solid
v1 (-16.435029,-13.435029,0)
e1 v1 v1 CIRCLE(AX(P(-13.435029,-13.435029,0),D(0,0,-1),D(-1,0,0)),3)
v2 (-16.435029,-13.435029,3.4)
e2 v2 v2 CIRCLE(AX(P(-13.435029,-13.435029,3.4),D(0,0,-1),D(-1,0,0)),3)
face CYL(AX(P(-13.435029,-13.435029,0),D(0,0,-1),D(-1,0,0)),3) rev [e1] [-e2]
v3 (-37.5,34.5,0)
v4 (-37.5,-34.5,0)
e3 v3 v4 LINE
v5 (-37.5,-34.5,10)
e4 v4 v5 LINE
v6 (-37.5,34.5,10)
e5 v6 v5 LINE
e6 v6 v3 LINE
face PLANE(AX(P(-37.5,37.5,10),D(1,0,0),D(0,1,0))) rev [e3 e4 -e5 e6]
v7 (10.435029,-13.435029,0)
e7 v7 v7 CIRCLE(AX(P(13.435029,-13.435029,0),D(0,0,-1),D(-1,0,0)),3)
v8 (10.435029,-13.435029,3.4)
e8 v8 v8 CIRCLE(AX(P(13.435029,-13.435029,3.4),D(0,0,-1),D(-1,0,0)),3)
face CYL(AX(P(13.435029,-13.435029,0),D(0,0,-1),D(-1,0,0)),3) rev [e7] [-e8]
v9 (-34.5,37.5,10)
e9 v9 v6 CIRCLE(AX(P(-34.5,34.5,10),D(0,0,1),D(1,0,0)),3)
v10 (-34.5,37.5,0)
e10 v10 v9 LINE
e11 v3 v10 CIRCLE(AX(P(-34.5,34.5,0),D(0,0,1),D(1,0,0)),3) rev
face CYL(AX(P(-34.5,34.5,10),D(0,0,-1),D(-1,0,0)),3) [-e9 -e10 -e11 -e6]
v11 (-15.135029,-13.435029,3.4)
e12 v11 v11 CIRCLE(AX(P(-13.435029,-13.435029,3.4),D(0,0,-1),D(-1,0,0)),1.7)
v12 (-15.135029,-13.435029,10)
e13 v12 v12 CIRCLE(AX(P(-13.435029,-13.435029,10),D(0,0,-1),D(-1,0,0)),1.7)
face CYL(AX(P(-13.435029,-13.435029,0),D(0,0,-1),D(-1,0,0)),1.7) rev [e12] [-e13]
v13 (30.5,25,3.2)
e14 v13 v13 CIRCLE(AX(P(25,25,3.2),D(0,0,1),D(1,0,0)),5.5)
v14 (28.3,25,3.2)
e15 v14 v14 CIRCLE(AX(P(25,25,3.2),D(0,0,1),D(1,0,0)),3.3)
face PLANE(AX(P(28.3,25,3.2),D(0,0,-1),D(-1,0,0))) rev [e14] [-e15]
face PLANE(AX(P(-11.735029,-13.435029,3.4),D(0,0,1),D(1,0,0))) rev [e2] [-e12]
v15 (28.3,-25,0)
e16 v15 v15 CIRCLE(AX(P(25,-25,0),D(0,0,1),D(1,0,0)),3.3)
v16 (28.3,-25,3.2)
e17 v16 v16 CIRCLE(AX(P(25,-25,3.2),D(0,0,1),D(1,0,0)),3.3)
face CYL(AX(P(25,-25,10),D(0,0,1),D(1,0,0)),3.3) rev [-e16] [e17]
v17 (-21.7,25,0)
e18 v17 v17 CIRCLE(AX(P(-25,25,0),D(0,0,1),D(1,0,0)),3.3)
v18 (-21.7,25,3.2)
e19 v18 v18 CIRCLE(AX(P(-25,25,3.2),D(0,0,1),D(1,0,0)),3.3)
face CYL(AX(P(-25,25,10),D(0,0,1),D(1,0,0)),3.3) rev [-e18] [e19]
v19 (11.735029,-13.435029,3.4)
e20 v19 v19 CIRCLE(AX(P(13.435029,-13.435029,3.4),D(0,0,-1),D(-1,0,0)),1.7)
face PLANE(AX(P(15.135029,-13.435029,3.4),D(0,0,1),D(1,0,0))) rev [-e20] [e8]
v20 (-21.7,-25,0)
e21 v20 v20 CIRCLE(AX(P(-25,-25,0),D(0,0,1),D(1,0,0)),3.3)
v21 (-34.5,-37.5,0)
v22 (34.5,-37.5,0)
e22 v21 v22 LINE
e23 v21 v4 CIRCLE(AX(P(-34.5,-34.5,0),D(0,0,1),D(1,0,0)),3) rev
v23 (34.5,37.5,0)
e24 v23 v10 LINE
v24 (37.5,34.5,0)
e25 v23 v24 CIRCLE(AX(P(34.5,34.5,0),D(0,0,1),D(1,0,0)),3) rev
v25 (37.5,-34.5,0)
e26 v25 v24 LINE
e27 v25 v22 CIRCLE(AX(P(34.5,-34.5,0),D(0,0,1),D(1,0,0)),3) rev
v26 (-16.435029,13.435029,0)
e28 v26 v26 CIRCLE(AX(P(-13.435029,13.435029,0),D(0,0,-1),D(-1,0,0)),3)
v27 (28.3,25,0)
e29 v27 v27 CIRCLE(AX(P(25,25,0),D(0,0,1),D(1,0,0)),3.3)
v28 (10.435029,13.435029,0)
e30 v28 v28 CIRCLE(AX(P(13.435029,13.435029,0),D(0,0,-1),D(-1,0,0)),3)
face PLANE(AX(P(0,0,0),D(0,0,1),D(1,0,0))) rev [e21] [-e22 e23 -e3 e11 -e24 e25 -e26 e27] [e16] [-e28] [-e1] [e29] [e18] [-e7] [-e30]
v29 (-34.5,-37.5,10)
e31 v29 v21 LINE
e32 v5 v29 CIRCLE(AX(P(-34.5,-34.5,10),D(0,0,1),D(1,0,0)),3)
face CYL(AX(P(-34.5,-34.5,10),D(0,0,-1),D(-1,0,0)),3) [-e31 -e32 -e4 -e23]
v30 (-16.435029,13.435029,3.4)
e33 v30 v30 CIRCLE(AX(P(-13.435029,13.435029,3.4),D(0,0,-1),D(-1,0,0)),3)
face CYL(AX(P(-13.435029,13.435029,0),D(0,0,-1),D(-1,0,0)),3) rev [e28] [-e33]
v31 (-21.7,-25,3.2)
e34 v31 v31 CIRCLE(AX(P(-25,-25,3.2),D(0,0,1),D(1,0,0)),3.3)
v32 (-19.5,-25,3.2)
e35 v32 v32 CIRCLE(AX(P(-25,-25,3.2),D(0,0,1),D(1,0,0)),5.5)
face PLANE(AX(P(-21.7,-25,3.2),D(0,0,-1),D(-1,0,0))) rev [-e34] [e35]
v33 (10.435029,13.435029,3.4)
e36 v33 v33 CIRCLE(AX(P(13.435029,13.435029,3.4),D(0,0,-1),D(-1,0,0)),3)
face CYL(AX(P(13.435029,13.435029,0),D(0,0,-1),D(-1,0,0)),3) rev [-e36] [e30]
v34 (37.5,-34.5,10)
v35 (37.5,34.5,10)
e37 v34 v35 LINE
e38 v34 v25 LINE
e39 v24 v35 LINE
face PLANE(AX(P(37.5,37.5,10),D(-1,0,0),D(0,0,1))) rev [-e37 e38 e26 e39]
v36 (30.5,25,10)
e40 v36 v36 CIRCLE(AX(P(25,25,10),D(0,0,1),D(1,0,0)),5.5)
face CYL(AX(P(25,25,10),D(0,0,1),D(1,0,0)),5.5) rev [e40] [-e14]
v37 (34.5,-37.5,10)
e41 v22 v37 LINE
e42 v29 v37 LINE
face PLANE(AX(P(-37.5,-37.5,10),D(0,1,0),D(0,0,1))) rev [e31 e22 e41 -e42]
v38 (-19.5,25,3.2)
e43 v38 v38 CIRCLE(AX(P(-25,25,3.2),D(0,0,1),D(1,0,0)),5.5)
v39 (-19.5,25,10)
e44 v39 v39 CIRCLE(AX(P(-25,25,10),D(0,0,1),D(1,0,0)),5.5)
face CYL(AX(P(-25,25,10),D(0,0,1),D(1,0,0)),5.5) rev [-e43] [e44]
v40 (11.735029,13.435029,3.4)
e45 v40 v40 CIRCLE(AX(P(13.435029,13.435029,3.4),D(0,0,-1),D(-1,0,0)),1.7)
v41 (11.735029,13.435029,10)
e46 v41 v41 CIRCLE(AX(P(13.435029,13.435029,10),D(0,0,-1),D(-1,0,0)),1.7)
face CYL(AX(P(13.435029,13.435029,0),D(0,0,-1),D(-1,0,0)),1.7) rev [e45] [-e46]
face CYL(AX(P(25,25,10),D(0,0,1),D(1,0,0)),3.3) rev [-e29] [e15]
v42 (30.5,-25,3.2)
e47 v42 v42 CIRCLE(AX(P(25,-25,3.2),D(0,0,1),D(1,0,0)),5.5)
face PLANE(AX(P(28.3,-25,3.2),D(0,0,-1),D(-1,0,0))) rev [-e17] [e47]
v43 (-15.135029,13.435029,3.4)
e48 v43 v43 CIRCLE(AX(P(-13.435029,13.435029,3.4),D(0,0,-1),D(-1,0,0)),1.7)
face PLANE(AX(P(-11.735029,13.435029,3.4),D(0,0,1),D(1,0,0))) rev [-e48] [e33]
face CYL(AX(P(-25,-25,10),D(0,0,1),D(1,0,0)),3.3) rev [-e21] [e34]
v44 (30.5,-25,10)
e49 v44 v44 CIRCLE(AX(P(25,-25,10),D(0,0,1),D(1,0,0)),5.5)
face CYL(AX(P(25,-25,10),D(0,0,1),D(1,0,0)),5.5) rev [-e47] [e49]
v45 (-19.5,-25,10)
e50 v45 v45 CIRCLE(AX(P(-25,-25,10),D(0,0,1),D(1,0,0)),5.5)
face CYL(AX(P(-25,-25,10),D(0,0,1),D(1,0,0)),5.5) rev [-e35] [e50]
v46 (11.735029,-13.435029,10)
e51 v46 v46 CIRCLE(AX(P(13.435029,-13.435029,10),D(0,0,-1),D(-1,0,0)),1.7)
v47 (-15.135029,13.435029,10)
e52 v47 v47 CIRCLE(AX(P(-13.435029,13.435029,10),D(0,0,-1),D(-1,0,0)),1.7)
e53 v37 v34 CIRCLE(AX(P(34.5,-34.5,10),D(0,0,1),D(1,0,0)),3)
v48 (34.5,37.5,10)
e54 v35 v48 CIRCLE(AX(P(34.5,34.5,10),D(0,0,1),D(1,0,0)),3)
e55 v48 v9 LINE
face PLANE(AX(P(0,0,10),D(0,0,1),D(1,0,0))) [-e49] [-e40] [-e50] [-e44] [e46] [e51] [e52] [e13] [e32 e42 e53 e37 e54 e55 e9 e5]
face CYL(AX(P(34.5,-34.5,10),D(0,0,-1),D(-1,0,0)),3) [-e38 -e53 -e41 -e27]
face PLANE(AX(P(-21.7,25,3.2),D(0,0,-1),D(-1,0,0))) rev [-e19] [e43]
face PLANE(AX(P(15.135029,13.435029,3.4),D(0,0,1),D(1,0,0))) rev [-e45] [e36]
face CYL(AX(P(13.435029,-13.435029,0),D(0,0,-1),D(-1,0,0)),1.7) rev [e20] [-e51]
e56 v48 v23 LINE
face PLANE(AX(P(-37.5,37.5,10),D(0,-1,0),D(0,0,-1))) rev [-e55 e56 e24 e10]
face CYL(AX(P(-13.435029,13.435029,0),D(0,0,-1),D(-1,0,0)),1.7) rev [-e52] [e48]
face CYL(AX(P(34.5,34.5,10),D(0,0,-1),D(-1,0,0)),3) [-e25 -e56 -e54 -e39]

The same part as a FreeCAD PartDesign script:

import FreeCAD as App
import Part
import Sketcher
from FreeCAD import Vector
Q = App.Units.Quantity


def edges_at(feature, points):
    """Names of the edges that pass closest to the given points."""
    edges = feature.Shape.Edges
    near = lambda p: min(range(len(edges)), key=lambda i: edges[i].distToShape(Part.Vertex(*p))[0])
    return sorted({f"Edge{near(p) + 1}" for p in points})


def add_polygon(sketch, points):
    """Adds a closed chain of lines whose ends are joined by coincident constraints."""
    first, n = sketch.GeometryCount, len(points)
    for a, b in zip(points, points[1:] + points[:1]):
        sketch.addGeometry(Part.LineSegment(App.Vector(*a, 0), App.Vector(*b, 0)), False)
    for i in range(n):
        sketch.addConstraint(Sketcher.Constraint("Coincident", first + i, 2, first + (i + 1) % n, 1))

doc = App.newDocument("Part")
body = doc.addObject("PartDesign::Body", "Body")

# Sketch on XY plane
sketch1 = doc.addObject("Sketcher::SketchObject", "Sketch")
body.addObject(sketch1)
sketch1.AttachmentSupport = (doc.XY_Plane, [""])
sketch1.MapMode = "FlatFace"
add_polygon(sketch1, [(-38, 38), (-38, -38), (38, -38), (38, 38)])  # lines 0-3
sketch1.addConstraint([
    Sketcher.Constraint("Vertical", 0),
    Sketcher.Constraint("Horizontal", 1),
    Sketcher.Constraint("Vertical", 2),
    Sketcher.Constraint("Horizontal", 3),
    Sketcher.Constraint("Symmetric", 0, 2, 2, 2, -1, 1),
    Sketcher.Constraint("Equal", 3, 0),
    Sketcher.Constraint("DistanceX", 1, 1, 1, 2, Q("75 mm")),
])
pad1 = doc.addObject("PartDesign::Pad", "Pad")
body.addObject(pad1)
pad1.Profile = sketch1
pad1.Length = 10

# Sketch on XY plane
sketch2 = doc.addObject("Sketcher::SketchObject", "Sketch001")
body.addObject(sketch2)
sketch2.AttachmentSupport = (doc.XY_Plane, [""])
sketch2.MapMode = "FlatFace"
sketch2.AttachmentOffset = App.Placement(Vector(0, 0, 10), App.Rotation())
sketch2.addGeometry([
    Part.Circle(Vector(-25, 25, 0), Vector(0, 0, 1), 3.3),
    Part.Circle(Vector(-25, -25, 0), Vector(0, 0, 1), 3.3),
    Part.Circle(Vector(25, -25, 0), Vector(0, 0, 1), 3.3),
    Part.Circle(Vector(25, 25, 0), Vector(0, 0, 1), 3.3),
], False)
sketch2.addConstraint([
    Sketcher.Constraint("Equal", 0, 1),
    Sketcher.Constraint("Equal", 1, 2),
    Sketcher.Constraint("Equal", 2, 3),
    Sketcher.Constraint("Symmetric", 0, 3, 2, 3, -1, 1),
    Sketcher.Constraint("Symmetric", 1, 3, 3, 3, -1, 1),
    Sketcher.Constraint("Symmetric", 1, 3, 2, 3, -2),
    Sketcher.Constraint("Diameter", 0, Q("6.6 mm")),
    Sketcher.Constraint("DistanceX", 0, 3, -1, 1, Q("25 mm")),
    Sketcher.Constraint("DistanceY", -1, 1, 0, 3, Q("25 mm")),
])
doc.recompute()
hole = doc.addObject("PartDesign::Hole", "Hole")
body.addObject(hole)
hole.Profile = sketch2
hole.ThreadType = "None"
hole.Diameter = 6.6
hole.DepthType = "Dimension"
hole.Depth = 15
hole.DrillPoint = "Angled"
hole.DrillPointAngle = 118
hole.HoleCutType = "Counterbore"
hole.HoleCutDiameter = 11
hole.HoleCutDepth = 6.8
doc.recompute()

fillet = doc.addObject("PartDesign::Fillet", "Fillet")
body.addObject(fillet)
fillet.Base = (hole, edges_at(hole, [
    (37.5, -37.5, 5),
    (-37.5, -37.5, 5),
    (-37.5, 37.5, 5),
    (37.5, 37.5, 5),
]))
fillet.Radius = 3

# Sketch on XY plane
sketch3 = doc.addObject("Sketcher::SketchObject", "Sketch002")
body.addObject(sketch3)
sketch3.AttachmentSupport = (doc.XY_Plane, [""])
sketch3.MapMode = "FlatFace"
sketch3.addGeometry([
    Part.Circle(Vector(-13.4, -13.4, 0), Vector(0, 0, 1), 1.7),
    Part.Circle(Vector(-13.4, 13.4, 0), Vector(0, 0, 1), 1.7),
    Part.Circle(Vector(13.4, 13.4, 0), Vector(0, 0, 1), 1.7),
    Part.Circle(Vector(13.4, -13.4, 0), Vector(0, 0, 1), 1.7),
], False)
sketch3.addConstraint([
    Sketcher.Constraint("Equal", 0, 1),
    Sketcher.Constraint("Equal", 1, 2),
    Sketcher.Constraint("Equal", 2, 3),
    Sketcher.Constraint("Symmetric", 0, 3, 2, 3, -1, 1),
    Sketcher.Constraint("Symmetric", 1, 3, 3, 3, -1, 1),
    Sketcher.Constraint("Symmetric", 1, 3, 2, 3, -2),
    Sketcher.Constraint("Diameter", 0, Q("3.4 mm")),
    Sketcher.Constraint("DistanceX", 0, 3, -1, 1, Q("13.435029 mm")),
    Sketcher.Constraint("DistanceY", 0, 3, -1, 1, Q("13.435029 mm")),
])
doc.recompute()
hole2 = doc.addObject("PartDesign::Hole", "Hole001")
body.addObject(hole2)
hole2.Profile = sketch3
hole2.ThreadType = "None"
hole2.Diameter = 3.4
hole2.DepthType = "ThroughAll"
hole2.HoleCutType = "Counterbore"
hole2.HoleCutDiameter = 6
hole2.HoleCutDepth = 3.4
hole2.Reversed = True

doc.recompute()
